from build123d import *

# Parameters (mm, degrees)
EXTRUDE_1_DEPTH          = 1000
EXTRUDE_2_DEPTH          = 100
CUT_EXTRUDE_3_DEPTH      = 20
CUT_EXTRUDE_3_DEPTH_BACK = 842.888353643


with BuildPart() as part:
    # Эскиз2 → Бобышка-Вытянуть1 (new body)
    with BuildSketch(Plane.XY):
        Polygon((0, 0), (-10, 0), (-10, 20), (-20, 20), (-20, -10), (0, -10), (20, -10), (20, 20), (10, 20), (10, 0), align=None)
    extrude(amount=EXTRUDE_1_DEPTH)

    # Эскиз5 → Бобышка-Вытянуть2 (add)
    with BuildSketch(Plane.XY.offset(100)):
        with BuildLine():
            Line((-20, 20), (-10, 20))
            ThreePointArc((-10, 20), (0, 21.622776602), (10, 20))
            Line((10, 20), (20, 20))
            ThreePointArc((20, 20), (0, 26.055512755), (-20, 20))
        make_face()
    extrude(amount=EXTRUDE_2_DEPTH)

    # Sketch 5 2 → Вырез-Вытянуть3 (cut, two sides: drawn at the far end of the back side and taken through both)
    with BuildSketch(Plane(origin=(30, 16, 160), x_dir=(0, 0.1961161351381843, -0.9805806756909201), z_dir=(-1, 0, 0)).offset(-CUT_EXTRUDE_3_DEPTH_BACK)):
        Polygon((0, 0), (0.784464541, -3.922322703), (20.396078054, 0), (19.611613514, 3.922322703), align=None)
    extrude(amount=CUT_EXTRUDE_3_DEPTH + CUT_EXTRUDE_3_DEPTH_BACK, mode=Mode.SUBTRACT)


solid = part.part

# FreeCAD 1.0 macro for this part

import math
import FreeCAD as App
import Part
import Sketcher
Q = App.Units.Quantity


def add_polygon(sketch, points):
    """Adds a closed chain of lines whose ends are joined by coincident constraints."""
    first, n = sketch.GeometryCount, len(points)
    for a, b in zip(points, points[1:] + points[:1]):
        sketch.addGeometry(Part.LineSegment(App.Vector(*a, 0), App.Vector(*b, 0)), False)
    for i in range(n):
        sketch.addConstraint(Sketcher.Constraint("Coincident", first + i, 2, first + (i + 1) % n, 1))

doc = App.newDocument("Part")
body = doc.addObject("PartDesign::Body", "Body")

# Sketch on XY plane
sketch1 = body.newObject("Sketcher::SketchObject", "Sketch")
sketch1.AttachmentSupport = (doc.getObject("XY_Plane"), [""])
sketch1.MapMode = "FlatFace"
add_polygon(sketch1, [(-10, 0), (-10, 20), (-20, 20), (-20, -10), (20, -10), (20, 20), (10, 20), (10, 0)])  # lines 0-7
sketch1.addConstraint(Sketcher.Constraint("Vertical", 0))
sketch1.addConstraint(Sketcher.Constraint("Horizontal", 1))
sketch1.addConstraint(Sketcher.Constraint("Vertical", 2))
sketch1.addConstraint(Sketcher.Constraint("Horizontal", 3))
sketch1.addConstraint(Sketcher.Constraint("Vertical", 4))
sketch1.addConstraint(Sketcher.Constraint("Horizontal", 5))
sketch1.addConstraint(Sketcher.Constraint("Vertical", 6))
sketch1.addConstraint(Sketcher.Constraint("Horizontal", 7))
sketch1.addConstraint(Sketcher.Constraint("Symmetric", 6, 2, 7, 2, -1, 1))
sketch1.addConstraint(Sketcher.Constraint("Symmetric", 1, 2, 4, 2, -2))
sketch1.addConstraint(Sketcher.Constraint("Equal", 7, 0))
sketch1.addConstraint(Sketcher.Constraint("DistanceX", 1, 2, 1, 1, Q("10 mm")))
sketch1.addConstraint(Sketcher.Constraint("DistanceX", 3, 1, 3, 2, Q("40 mm")))
sketch1.addConstraint(Sketcher.Constraint("DistanceY", 2, 2, 2, 1, Q("30 mm")))
pad1 = body.newObject("PartDesign::Pad", "Pad")
pad1.Profile = sketch1
pad1.Length = 1000

# Sketch on XY plane
sketch2 = body.newObject("Sketcher::SketchObject", "Sketch001")
sketch2.AttachmentSupport = (doc.getObject("XY_Plane"), [""])
sketch2.MapMode = "FlatFace"
sketch2.AttachmentOffset = App.Placement(App.Vector(0, 0, 100), App.Rotation())
sketch2.addGeometry(Part.LineSegment(App.Vector(-20, 20, 0), App.Vector(-10, 20, 0)), False)
sketch2.addGeometry(Part.ArcOfCircle(Part.Circle(App.Vector(0, -10, 0), App.Vector(0, 0, 1), 32), math.radians(72), math.radians(108)), False)
sketch2.addGeometry(Part.LineSegment(App.Vector(10, 20, 0), App.Vector(20, 20, 0)), False)
sketch2.addGeometry(Part.ArcOfCircle(Part.Circle(App.Vector(0, -10, 0), App.Vector(0, 0, 1), 36), math.radians(56), math.radians(124)), False)
sketch2.addConstraint(Sketcher.Constraint("Coincident", 0, 2, 1, 2))
sketch2.addConstraint(Sketcher.Constraint("Coincident", 1, 1, 2, 1))
sketch2.addConstraint(Sketcher.Constraint("Coincident", 2, 2, 3, 1))
sketch2.addConstraint(Sketcher.Constraint("Coincident", 3, 2, 0, 1))
sketch2.addConstraint(Sketcher.Constraint("Horizontal", 0))
sketch2.addConstraint(Sketcher.Constraint("Horizontal", 2))
sketch2.addConstraint(Sketcher.Constraint("Coincident", 3, 3, 1, 3))
sketch2.addConstraint(Sketcher.Constraint("Symmetric", 0, 2, 1, 1, -2))
sketch2.addConstraint(Sketcher.Constraint("DistanceX", 0, 1, 0, 2, Q("10 mm")))
sketch2.addConstraint(Sketcher.Constraint("DistanceY", 1, 3, -1, 1, Q("10 mm")))
sketch2.addConstraint(Sketcher.Constraint("DistanceX", 0, 2, -1, 1, Q("10 mm")))
sketch2.addConstraint(Sketcher.Constraint("DistanceY", -1, 1, 0, 2, Q("20 mm")))
pad2 = body.newObject("PartDesign::Pad", "Pad001")
pad2.Profile = sketch2
pad2.Length = 100

# Sketch on YZ plane
sketch3 = body.newObject("Sketcher::SketchObject", "Sketch002")
sketch3.AttachmentSupport = (doc.getObject("YZ_Plane"), [""])
sketch3.MapMode = "FlatFace"
sketch3.AttachmentOffset = App.Placement(App.Vector(0, 0, 30), App.Rotation())
add_polygon(sketch3, [(16, 160), (20, 160), (20, 140), (16, 140)])  # lines 0-3
sketch3.addConstraint(Sketcher.Constraint("Horizontal", 0))
sketch3.addConstraint(Sketcher.Constraint("Vertical", 1))
sketch3.addConstraint(Sketcher.Constraint("Horizontal", 2))
sketch3.addConstraint(Sketcher.Constraint("Vertical", 3))
sketch3.addConstraint(Sketcher.Constraint("DistanceX", 0, 1, 0, 2, Q("4 mm")))
sketch3.addConstraint(Sketcher.Constraint("DistanceY", 1, 2, 1, 1, Q("20 mm")))
sketch3.addConstraint(Sketcher.Constraint("DistanceX", -1, 1, 0, 2, Q("20 mm")))
sketch3.addConstraint(Sketcher.Constraint("DistanceY", -1, 1, 0, 2, Q("160 mm")))
pocket1 = body.newObject("PartDesign::Pocket", "Pocket")
pocket1.Profile = sketch3
pocket1.Type = "TwoLengths"
pocket1.Length = 20
pocket1.Length2 = 842.888354

doc.recompute()
